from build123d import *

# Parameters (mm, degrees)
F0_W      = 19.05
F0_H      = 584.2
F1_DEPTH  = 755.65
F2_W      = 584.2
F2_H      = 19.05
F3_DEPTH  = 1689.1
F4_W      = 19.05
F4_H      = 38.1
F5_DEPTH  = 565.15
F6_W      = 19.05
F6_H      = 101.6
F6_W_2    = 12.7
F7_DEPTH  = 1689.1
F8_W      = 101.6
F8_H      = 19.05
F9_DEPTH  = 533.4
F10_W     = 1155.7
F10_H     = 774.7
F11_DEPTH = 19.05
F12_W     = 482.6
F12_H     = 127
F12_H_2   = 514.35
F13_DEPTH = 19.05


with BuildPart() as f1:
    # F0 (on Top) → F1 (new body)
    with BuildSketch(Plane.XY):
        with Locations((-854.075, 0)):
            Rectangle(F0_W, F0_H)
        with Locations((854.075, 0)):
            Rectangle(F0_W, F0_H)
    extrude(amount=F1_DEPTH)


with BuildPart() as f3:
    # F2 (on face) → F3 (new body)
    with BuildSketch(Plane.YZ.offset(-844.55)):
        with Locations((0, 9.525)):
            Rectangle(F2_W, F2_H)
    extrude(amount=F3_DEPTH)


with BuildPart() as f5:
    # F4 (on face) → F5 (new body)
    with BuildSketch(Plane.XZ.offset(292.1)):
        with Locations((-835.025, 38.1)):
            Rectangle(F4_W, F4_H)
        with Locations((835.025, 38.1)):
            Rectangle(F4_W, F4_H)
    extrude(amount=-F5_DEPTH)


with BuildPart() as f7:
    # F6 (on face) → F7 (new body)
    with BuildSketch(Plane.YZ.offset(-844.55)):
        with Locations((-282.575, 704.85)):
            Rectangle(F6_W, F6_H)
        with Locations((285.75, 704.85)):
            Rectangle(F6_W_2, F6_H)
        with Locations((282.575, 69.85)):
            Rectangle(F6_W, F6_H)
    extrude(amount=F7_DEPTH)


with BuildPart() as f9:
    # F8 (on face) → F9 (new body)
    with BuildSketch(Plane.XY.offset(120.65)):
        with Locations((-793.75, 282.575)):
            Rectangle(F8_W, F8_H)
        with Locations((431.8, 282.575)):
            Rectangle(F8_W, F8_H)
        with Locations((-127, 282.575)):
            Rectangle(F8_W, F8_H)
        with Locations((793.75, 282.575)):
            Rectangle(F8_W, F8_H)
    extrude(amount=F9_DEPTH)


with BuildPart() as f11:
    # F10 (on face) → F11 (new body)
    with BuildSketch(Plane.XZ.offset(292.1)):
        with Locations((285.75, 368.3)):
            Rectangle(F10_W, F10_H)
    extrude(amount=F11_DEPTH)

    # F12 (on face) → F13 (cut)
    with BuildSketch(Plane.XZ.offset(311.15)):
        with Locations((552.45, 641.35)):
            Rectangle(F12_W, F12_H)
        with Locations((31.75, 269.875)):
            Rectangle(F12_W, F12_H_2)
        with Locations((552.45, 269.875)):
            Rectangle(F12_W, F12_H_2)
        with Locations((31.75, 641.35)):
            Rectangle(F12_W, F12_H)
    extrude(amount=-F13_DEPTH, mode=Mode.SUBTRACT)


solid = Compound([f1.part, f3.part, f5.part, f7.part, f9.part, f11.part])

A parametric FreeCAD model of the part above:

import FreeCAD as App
import Part
import Sketcher
from FreeCAD import Vector
Q = App.Units.Quantity

doc = App.newDocument("Part")
body = doc.addObject("PartDesign::Body", "Body")
body.AllowCompound = True

sketch1 = body.newObject("Sketcher::SketchObject", "Sketch")
sketch1.AttachmentSupport = (doc.getObject("XY_Plane"), [""])
sketch1.MapMode = "FlatFace"
sketch1.addGeometry(Part.LineSegment(Vector(-863.6, 292.1, 0), Vector(-863.6, -292.1, 0)), False)
sketch1.addGeometry(Part.LineSegment(Vector(-863.6, -292.1, 0), Vector(-844.55, -292.1, 0)), False)
sketch1.addGeometry(Part.LineSegment(Vector(-844.55, -292.1, 0), Vector(-844.55, 292.1, 0)), False)
sketch1.addGeometry(Part.LineSegment(Vector(-844.55, 292.1, 0), Vector(-863.6, 292.1, 0)), False)
sketch1.addGeometry(Part.LineSegment(Vector(844.55, 292.1, 0), Vector(844.55, -292.1, 0)), False)
sketch1.addGeometry(Part.LineSegment(Vector(844.55, -292.1, 0), Vector(863.6, -292.1, 0)), False)
sketch1.addGeometry(Part.LineSegment(Vector(863.6, -292.1, 0), Vector(863.6, 292.1, 0)), False)
sketch1.addGeometry(Part.LineSegment(Vector(863.6, 292.1, 0), Vector(844.55, 292.1, 0)), False)
sketch1.addConstraint(Sketcher.Constraint("Coincident", 0, 2, 1, 1))
sketch1.addConstraint(Sketcher.Constraint("Coincident", 1, 2, 2, 1))
sketch1.addConstraint(Sketcher.Constraint("Coincident", 2, 2, 3, 1))
sketch1.addConstraint(Sketcher.Constraint("Coincident", 3, 2, 0, 1))
sketch1.addConstraint(Sketcher.Constraint("Coincident", 4, 2, 5, 1))
sketch1.addConstraint(Sketcher.Constraint("Coincident", 5, 2, 6, 1))
sketch1.addConstraint(Sketcher.Constraint("Coincident", 6, 2, 7, 1))
sketch1.addConstraint(Sketcher.Constraint("Coincident", 7, 2, 4, 1))
sketch1.addConstraint(Sketcher.Constraint("Vertical", 0))
sketch1.addConstraint(Sketcher.Constraint("Horizontal", 1))
sketch1.addConstraint(Sketcher.Constraint("Vertical", 2))
sketch1.addConstraint(Sketcher.Constraint("Horizontal", 3))
sketch1.addConstraint(Sketcher.Constraint("Vertical", 4))
sketch1.addConstraint(Sketcher.Constraint("Horizontal", 5))
sketch1.addConstraint(Sketcher.Constraint("Vertical", 6))
sketch1.addConstraint(Sketcher.Constraint("Horizontal", 7))
sketch1.addConstraint(Sketcher.Constraint("Symmetric", 2, 2, 4, 2, -1, 1))
sketch1.addConstraint(Sketcher.Constraint("Symmetric", 0, 2, 6, 2, -1, 1))
sketch1.addConstraint(Sketcher.Constraint("Horizontal", 1, 2, 4, 2))
sketch1.addConstraint(Sketcher.Constraint("DistanceY", 0, 2, 0, 1, Q("23 in")))
sketch1.addConstraint(Sketcher.Constraint("DistanceX", 0, 2, -1, 1, Q("34 in")))
sketch1.addConstraint(Sketcher.Constraint("DistanceX", 1, 1, 1, 2, Q("0.75 in")))
pad1 = body.newObject("PartDesign::Pad", "Pad")
pad1.Profile = sketch1
pad1.Length = Q("29.75 in")
body2 = doc.addObject("PartDesign::Body", "Body001")

sketch2 = body2.newObject("Sketcher::SketchObject", "Sketch001")
sketch2.AttachmentSupport = (doc.getObject("YZ_Plane001"), [""])
sketch2.MapMode = "FlatFace"
sketch2.AttachmentOffset = App.Placement(Vector(0, 0, -33.25 * 25.4), App.Rotation())
sketch2.addGeometry(Part.LineSegment(Vector(-292.1, 19.05, 0), Vector(-292.1, 0, 0)), False)
sketch2.addGeometry(Part.LineSegment(Vector(-292.1, 0, 0), Vector(292.1, 0, 0)), False)
sketch2.addGeometry(Part.LineSegment(Vector(292.1, 0, 0), Vector(292.1, 19.05, 0)), False)
sketch2.addGeometry(Part.LineSegment(Vector(292.1, 19.05, 0), Vector(-292.1, 19.05, 0)), False)
sketch2.addConstraint(Sketcher.Constraint("Coincident", 0, 2, 1, 1))
sketch2.addConstraint(Sketcher.Constraint("Coincident", 1, 2, 2, 1))
sketch2.addConstraint(Sketcher.Constraint("Coincident", 2, 2, 3, 1))
sketch2.addConstraint(Sketcher.Constraint("Coincident", 3, 2, 0, 1))
sketch2.addConstraint(Sketcher.Constraint("Vertical", 0))
sketch2.addConstraint(Sketcher.Constraint("Horizontal", 1))
sketch2.addConstraint(Sketcher.Constraint("Vertical", 2))
sketch2.addConstraint(Sketcher.Constraint("Horizontal", 3))
sketch2.addConstraint(Sketcher.Constraint("Symmetric", 0, 2, 1, 2, -1, 1))
sketch2.addConstraint(Sketcher.Constraint("DistanceX", 1, 1, 1, 2, Q("23 in")))
sketch2.addConstraint(Sketcher.Constraint("DistanceY", 0, 2, 0, 1, Q("0.75 in")))
pad2 = body2.newObject("PartDesign::Pad", "Pad001")
pad2.Profile = sketch2
pad2.Length = Q("66.5 in")
body3 = doc.addObject("PartDesign::Body", "Body002")
body3.AllowCompound = True

sketch3 = body3.newObject("Sketcher::SketchObject", "Sketch002")
sketch3.AttachmentSupport = (doc.getObject("XZ_Plane002"), [""])
sketch3.MapMode = "FlatFace"
sketch3.AttachmentOffset = App.Placement(Vector(0, 0, 11.5 * 25.4), App.Rotation())
sketch3.addGeometry(Part.LineSegment(Vector(-844.55, 57.15, 0), Vector(-844.55, 19.05, 0)), False)
sketch3.addGeometry(Part.LineSegment(Vector(-844.55, 19.05, 0), Vector(-825.5, 19.05, 0)), False)
sketch3.addGeometry(Part.LineSegment(Vector(-825.5, 19.05, 0), Vector(-825.5, 57.15, 0)), False)
sketch3.addGeometry(Part.LineSegment(Vector(-825.5, 57.15, 0), Vector(-844.55, 57.15, 0)), False)
sketch3.addGeometry(Part.LineSegment(Vector(825.5, 57.15, 0), Vector(825.5, 19.05, 0)), False)
sketch3.addGeometry(Part.LineSegment(Vector(825.5, 19.05, 0), Vector(844.55, 19.05, 0)), False)
sketch3.addGeometry(Part.LineSegment(Vector(844.55, 19.05, 0), Vector(844.55, 57.15, 0)), False)
sketch3.addGeometry(Part.LineSegment(Vector(844.55, 57.15, 0), Vector(825.5, 57.15, 0)), False)
sketch3.addConstraint(Sketcher.Constraint("Coincident", 0, 2, 1, 1))
sketch3.addConstraint(Sketcher.Constraint("Coincident", 1, 2, 2, 1))
sketch3.addConstraint(Sketcher.Constraint("Coincident", 2, 2, 3, 1))
sketch3.addConstraint(Sketcher.Constraint("Coincident", 3, 2, 0, 1))
sketch3.addConstraint(Sketcher.Constraint("Coincident", 4, 2, 5, 1))
sketch3.addConstraint(Sketcher.Constraint("Coincident", 5, 2, 6, 1))
sketch3.addConstraint(Sketcher.Constraint("Coincident", 6, 2, 7, 1))
sketch3.addConstraint(Sketcher.Constraint("Coincident", 7, 2, 4, 1))
sketch3.addConstraint(Sketcher.Constraint("Vertical", 0))
sketch3.addConstraint(Sketcher.Constraint("Horizontal", 1))
sketch3.addConstraint(Sketcher.Constraint("Vertical", 2))
sketch3.addConstraint(Sketcher.Constraint("Horizontal", 3))
sketch3.addConstraint(Sketcher.Constraint("Vertical", 4))
sketch3.addConstraint(Sketcher.Constraint("Horizontal", 5))
sketch3.addConstraint(Sketcher.Constraint("Vertical", 6))
sketch3.addConstraint(Sketcher.Constraint("Horizontal", 7))
sketch3.addConstraint(Sketcher.Constraint("Symmetric", 1, 2, 4, 2, -2))
sketch3.addConstraint(Sketcher.Constraint("Symmetric", 3, 2, 6, 2, -2))
sketch3.addConstraint(Sketcher.Constraint("DistanceY", 0, 2, 0, 1, Q("1.5 in")))
sketch3.addConstraint(Sketcher.Constraint("DistanceX", 1, 2, 4, 2, Q("65 in")))
sketch3.addConstraint(Sketcher.Constraint("DistanceX", 1, 1, 1, 2, Q("0.75 in")))
sketch3.addConstraint(Sketcher.Constraint("DistanceY", -1, 1, 0, 2, Q("0.75 in")))
pad3 = body3.newObject("PartDesign::Pad", "Pad002")
pad3.Profile = sketch3
pad3.Length = Q("22.25 in")
pad3.Reversed = True
body4 = doc.addObject("PartDesign::Body", "Body003")
body4.AllowCompound = True

sketch4 = body4.newObject("Sketcher::SketchObject", "Sketch003")
sketch4.AttachmentSupport = (doc.getObject("YZ_Plane003"), [""])
sketch4.MapMode = "FlatFace"
sketch4.AttachmentOffset = App.Placement(Vector(0, 0, -33.25 * 25.4), App.Rotation())
sketch4.addGeometry(Part.LineSegment(Vector(-292.1, 755.65, 0), Vector(-292.1, 654.05, 0)), False)
sketch4.addGeometry(Part.LineSegment(Vector(-292.1, 654.05, 0), Vector(-273.05, 654.05, 0)), False)
sketch4.addGeometry(Part.LineSegment(Vector(-273.05, 654.05, 0), Vector(-273.05, 755.65, 0)), False)
sketch4.addGeometry(Part.LineSegment(Vector(-273.05, 755.65, 0), Vector(-292.1, 755.65, 0)), False)
sketch4.addGeometry(Part.LineSegment(Vector(279.4, 755.65, 0), Vector(279.4, 654.05, 0)), False)
sketch4.addGeometry(Part.LineSegment(Vector(279.4, 654.05, 0), Vector(292.1, 654.05, 0)), False)
sketch4.addGeometry(Part.LineSegment(Vector(292.1, 654.05, 0), Vector(292.1, 755.65, 0)), False)
sketch4.addGeometry(Part.LineSegment(Vector(292.1, 755.65, 0), Vector(279.4, 755.65, 0)), False)
sketch4.addGeometry(Part.LineSegment(Vector(273.05, 120.65, 0), Vector(273.05, 19.05, 0)), False)
sketch4.addGeometry(Part.LineSegment(Vector(273.05, 19.05, 0), Vector(292.1, 19.05, 0)), False)
sketch4.addGeometry(Part.LineSegment(Vector(292.1, 19.05, 0), Vector(292.1, 120.65, 0)), False)
sketch4.addGeometry(Part.LineSegment(Vector(292.1, 120.65, 0), Vector(273.05, 120.65, 0)), False)
sketch4.addConstraint(Sketcher.Constraint("Coincident", 0, 2, 1, 1))
sketch4.addConstraint(Sketcher.Constraint("Coincident", 1, 2, 2, 1))
sketch4.addConstraint(Sketcher.Constraint("Coincident", 2, 2, 3, 1))
sketch4.addConstraint(Sketcher.Constraint("Coincident", 3, 2, 0, 1))
sketch4.addConstraint(Sketcher.Constraint("Coincident", 4, 2, 5, 1))
sketch4.addConstraint(Sketcher.Constraint("Coincident", 5, 2, 6, 1))
sketch4.addConstraint(Sketcher.Constraint("Coincident", 6, 2, 7, 1))
sketch4.addConstraint(Sketcher.Constraint("Coincident", 7, 2, 4, 1))
sketch4.addConstraint(Sketcher.Constraint("Coincident", 8, 2, 9, 1))
sketch4.addConstraint(Sketcher.Constraint("Coincident", 9, 2, 10, 1))
sketch4.addConstraint(Sketcher.Constraint("Coincident", 10, 2, 11, 1))
sketch4.addConstraint(Sketcher.Constraint("Coincident", 11, 2, 8, 1))
sketch4.addConstraint(Sketcher.Constraint("Vertical", 0))
sketch4.addConstraint(Sketcher.Constraint("Horizontal", 1))
sketch4.addConstraint(Sketcher.Constraint("Vertical", 2))
sketch4.addConstraint(Sketcher.Constraint("Horizontal", 3))
sketch4.addConstraint(Sketcher.Constraint("Vertical", 4))
sketch4.addConstraint(Sketcher.Constraint("Horizontal", 5))
sketch4.addConstraint(Sketcher.Constraint("Vertical", 6))
sketch4.addConstraint(Sketcher.Constraint("Horizontal", 7))
sketch4.addConstraint(Sketcher.Constraint("Vertical", 8))
sketch4.addConstraint(Sketcher.Constraint("Horizontal", 9))
sketch4.addConstraint(Sketcher.Constraint("Vertical", 10))
sketch4.addConstraint(Sketcher.Constraint("Horizontal", 11))
sketch4.addConstraint(Sketcher.Constraint("Symmetric", 0, 2, 5, 2, -2))
sketch4.addConstraint(Sketcher.Constraint("Horizontal", 3, 2, 6, 2))
sketch4.addConstraint(Sketcher.Constraint("Vertical", 6, 2, 9, 2))
sketch4.addConstraint(Sketcher.Constraint("Equal", 3, 9))
sketch4.addConstraint(Sketcher.Constraint("Equal", 6, 8))
sketch4.addConstraint(Sketcher.Constraint("DistanceY", 0, 2, 0, 1, Q("4 in")))
sketch4.addConstraint(Sketcher.Constraint("DistanceX", 5, 1, 5, 2, Q("0.5 in")))
sketch4.addConstraint(Sketcher.Constraint("DistanceX", -1, 1, 4, 2, Q("11 in")))
sketch4.addConstraint(Sketcher.Constraint("DistanceY", 8, 2, 4, 2, Q("25 in")))
sketch4.addConstraint(Sketcher.Constraint("DistanceX", 1, 1, 1, 2, Q("0.75 in")))
sketch4.addConstraint(Sketcher.Constraint("DistanceY", -1, 1, 0, 2, Q("25.75 in")))
pad4 = body4.newObject("PartDesign::Pad", "Pad003")
pad4.Profile = sketch4
pad4.Length = Q("66.5 in")
body5 = doc.addObject("PartDesign::Body", "Body004")
body5.AllowCompound = True

sketch5 = body5.newObject("Sketcher::SketchObject", "Sketch004")
sketch5.AttachmentSupport = (doc.getObject("XY_Plane004"), [""])
sketch5.MapMode = "FlatFace"
sketch5.AttachmentOffset = App.Placement(Vector(0, 0, 4.75 * 25.4), App.Rotation())
sketch5.addGeometry(Part.LineSegment(Vector(-844.55, 292.1, 0), Vector(-844.55, 273.05, 0)), False)
sketch5.addGeometry(Part.LineSegment(Vector(-844.55, 273.05, 0), Vector(-742.95, 273.05, 0)), False)
sketch5.addGeometry(Part.LineSegment(Vector(-742.95, 273.05, 0), Vector(-742.95, 292.1, 0)), False)
sketch5.addGeometry(Part.LineSegment(Vector(-742.95, 292.1, 0), Vector(-844.55, 292.1, 0)), False)
sketch5.addGeometry(Part.LineSegment(Vector(381, 292.1, 0), Vector(381, 273.05, 0)), False)
sketch5.addGeometry(Part.LineSegment(Vector(381, 273.05, 0), Vector(482.6, 273.05, 0)), False)
sketch5.addGeometry(Part.LineSegment(Vector(482.6, 273.05, 0), Vector(482.6, 292.1, 0)), False)
sketch5.addGeometry(Part.LineSegment(Vector(482.6, 292.1, 0), Vector(381, 292.1, 0)), False)
sketch5.addGeometry(Part.LineSegment(Vector(-177.8, 292.1, 0), Vector(-177.8, 273.05, 0)), False)
sketch5.addGeometry(Part.LineSegment(Vector(-177.8, 273.05, 0), Vector(-76.2, 273.05, 0)), False)
sketch5.addGeometry(Part.LineSegment(Vector(-76.2, 273.05, 0), Vector(-76.2, 292.1, 0)), False)
sketch5.addGeometry(Part.LineSegment(Vector(-76.2, 292.1, 0), Vector(-177.8, 292.1, 0)), False)
sketch5.addGeometry(Part.LineSegment(Vector(742.95, 292.1, 0), Vector(742.95, 273.05, 0)), False)
sketch5.addGeometry(Part.LineSegment(Vector(742.95, 273.05, 0), Vector(844.55, 273.05, 0)), False)
sketch5.addGeometry(Part.LineSegment(Vector(844.55, 273.05, 0), Vector(844.55, 292.1, 0)), False)
sketch5.addGeometry(Part.LineSegment(Vector(844.55, 292.1, 0), Vector(742.95, 292.1, 0)), False)
sketch5.addConstraint(Sketcher.Constraint("Coincident", 0, 2, 1, 1))
sketch5.addConstraint(Sketcher.Constraint("Coincident", 1, 2, 2, 1))
sketch5.addConstraint(Sketcher.Constraint("Coincident", 2, 2, 3, 1))
sketch5.addConstraint(Sketcher.Constraint("Coincident", 3, 2, 0, 1))
sketch5.addConstraint(Sketcher.Constraint("Coincident", 4, 2, 5, 1))
sketch5.addConstraint(Sketcher.Constraint("Coincident", 5, 2, 6, 1))
sketch5.addConstraint(Sketcher.Constraint("Coincident", 6, 2, 7, 1))
sketch5.addConstraint(Sketcher.Constraint("Coincident", 7, 2, 4, 1))
sketch5.addConstraint(Sketcher.Constraint("Coincident", 8, 2, 9, 1))
sketch5.addConstraint(Sketcher.Constraint("Coincident", 9, 2, 10, 1))
sketch5.addConstraint(Sketcher.Constraint("Coincident", 10, 2, 11, 1))
sketch5.addConstraint(Sketcher.Constraint("Coincident", 11, 2, 8, 1))
sketch5.addConstraint(Sketcher.Constraint("Coincident", 12, 2, 13, 1))
sketch5.addConstraint(Sketcher.Constraint("Coincident", 13, 2, 14, 1))
sketch5.addConstraint(Sketcher.Constraint("Coincident", 14, 2, 15, 1))
sketch5.addConstraint(Sketcher.Constraint("Coincident", 15, 2, 12, 1))
sketch5.addConstraint(Sketcher.Constraint("Vertical", 0))
sketch5.addConstraint(Sketcher.Constraint("Horizontal", 1))
sketch5.addConstraint(Sketcher.Constraint("Vertical", 2))
sketch5.addConstraint(Sketcher.Constraint("Horizontal", 3))
sketch5.addConstraint(Sketcher.Constraint("Vertical", 4))
sketch5.addConstraint(Sketcher.Constraint("Horizontal", 5))
sketch5.addConstraint(Sketcher.Constraint("Vertical", 6))
sketch5.addConstraint(Sketcher.Constraint("Horizontal", 7))
sketch5.addConstraint(Sketcher.Constraint("Vertical", 8))
sketch5.addConstraint(Sketcher.Constraint("Horizontal", 9))
sketch5.addConstraint(Sketcher.Constraint("Vertical", 10))
sketch5.addConstraint(Sketcher.Constraint("Horizontal", 11))
sketch5.addConstraint(Sketcher.Constraint("Vertical", 12))
sketch5.addConstraint(Sketcher.Constraint("Horizontal", 13))
sketch5.addConstraint(Sketcher.Constraint("Vertical", 14))
sketch5.addConstraint(Sketcher.Constraint("Horizontal", 15))
sketch5.addConstraint(Sketcher.Constraint("Symmetric", 1, 2, 12, 2, -2))
sketch5.addConstraint(Sketcher.Constraint("Symmetric", 3, 2, 14, 2, -2))
sketch5.addConstraint(Sketcher.Constraint("Horizontal", 1, 2, 4, 2))
sketch5.addConstraint(Sketcher.Constraint("Horizontal", 3, 2, 6, 2))
sketch5.addConstraint(Sketcher.Constraint("Horizontal", 5, 2, 8, 2))
sketch5.addConstraint(Sketcher.Constraint("Horizontal", 7, 2, 10, 2))
sketch5.addConstraint(Sketcher.Constraint("Equal", 3, 5))
sketch5.addConstraint(Sketcher.Constraint("Equal", 7, 9))
sketch5.addConstraint(Sketcher.Constraint("DistanceX", 1, 1, 1, 2, Q("4 in")))
sketch5.addConstraint(Sketcher.Constraint("DistanceX", -1, 1, 4, 2, Q("15 in")))
sketch5.addConstraint(Sketcher.Constraint("DistanceX", 8, 2, -1, 1, Q("7 in")))
sketch5.addConstraint(Sketcher.Constraint("DistanceY", 0, 2, 0, 1, Q("0.75 in")))
sketch5.addConstraint(Sketcher.Constraint("DistanceY", -1, 1, 2, 2, Q("11.5 in")))
sketch5.addConstraint(Sketcher.Constraint("DistanceX", 0, 2, -1, 1, Q("33.25 in")))
pad5 = body5.newObject("PartDesign::Pad", "Pad004")
pad5.Profile = sketch5
pad5.Length = Q("21 in")
body6 = doc.addObject("PartDesign::Body", "Body005")

sketch6 = body6.newObject("Sketcher::SketchObject", "Sketch005")
sketch6.AttachmentSupport = (doc.getObject("XZ_Plane005"), [""])
sketch6.MapMode = "FlatFace"
sketch6.AttachmentOffset = App.Placement(Vector(0, 0, 11.5 * 25.4), App.Rotation())
sketch6.addGeometry(Part.LineSegment(Vector(-292.1, 755.65, 0), Vector(-292.1, -19.05, 0)), False)
sketch6.addGeometry(Part.LineSegment(Vector(-292.1, -19.05, 0), Vector(863.6, -19.05, 0)), False)
sketch6.addGeometry(Part.LineSegment(Vector(863.6, -19.05, 0), Vector(863.6, 755.65, 0)), False)
sketch6.addGeometry(Part.LineSegment(Vector(863.6, 755.65, 0), Vector(-292.1, 755.65, 0)), False)
sketch6.addConstraint(Sketcher.Constraint("Coincident", 0, 2, 1, 1))
sketch6.addConstraint(Sketcher.Constraint("Coincident", 1, 2, 2, 1))
sketch6.addConstraint(Sketcher.Constraint("Coincident", 2, 2, 3, 1))
sketch6.addConstraint(Sketcher.Constraint("Coincident", 3, 2, 0, 1))
sketch6.addConstraint(Sketcher.Constraint("Vertical", 0))
sketch6.addConstraint(Sketcher.Constraint("Horizontal", 1))
sketch6.addConstraint(Sketcher.Constraint("Vertical", 2))
sketch6.addConstraint(Sketcher.Constraint("Horizontal", 3))
sketch6.addConstraint(Sketcher.Constraint("DistanceX", 1, 1, 1, 2, Q("45.5 in")))
sketch6.addConstraint(Sketcher.Constraint("DistanceY", 0, 2, 0, 1, Q("30.5 in")))
sketch6.addConstraint(Sketcher.Constraint("DistanceX", -1, 1, 1, 2, Q("34 in")))
sketch6.addConstraint(Sketcher.Constraint("DistanceY", 0, 2, -1, 1, Q("0.75 in")))
pad6 = body6.newObject("PartDesign::Pad", "Pad005")
pad6.Profile = sketch6
pad6.Length = Q("0.75 in")

sketch7 = body6.newObject("Sketcher::SketchObject", "Sketch006")
sketch7.AttachmentSupport = (doc.getObject("XZ_Plane005"), [""])
sketch7.MapMode = "FlatFace"
sketch7.AttachmentOffset = App.Placement(Vector(0, 0, 12.25 * 25.4), App.Rotation())
sketch7.addGeometry(Part.LineSegment(Vector(311.15, 704.85, 0), Vector(311.15, 577.85, 0)), False)
sketch7.addGeometry(Part.LineSegment(Vector(311.15, 577.85, 0), Vector(793.75, 577.85, 0)), False)
sketch7.addGeometry(Part.LineSegment(Vector(793.75, 577.85, 0), Vector(793.75, 704.85, 0)), False)
sketch7.addGeometry(Part.LineSegment(Vector(793.75, 704.85, 0), Vector(311.15, 704.85, 0)), False)
sketch7.addGeometry(Part.LineSegment(Vector(-209.55, 527.05, 0), Vector(-209.55, 12.7, 0)), False)
sketch7.addGeometry(Part.LineSegment(Vector(-209.55, 12.7, 0), Vector(273.05, 12.7, 0)), False)
sketch7.addGeometry(Part.LineSegment(Vector(273.05, 12.7, 0), Vector(273.05, 527.05, 0)), False)
sketch7.addGeometry(Part.LineSegment(Vector(273.05, 527.05, 0), Vector(-209.55, 527.05, 0)), False)
sketch7.addGeometry(Part.LineSegment(Vector(311.15, 527.05, 0), Vector(311.15, 12.7, 0)), False)
sketch7.addGeometry(Part.LineSegment(Vector(311.15, 12.7, 0), Vector(793.75, 12.7, 0)), False)
sketch7.addGeometry(Part.LineSegment(Vector(793.75, 12.7, 0), Vector(793.75, 527.05, 0)), False)
sketch7.addGeometry(Part.LineSegment(Vector(793.75, 527.05, 0), Vector(311.15, 527.05, 0)), False)
sketch7.addGeometry(Part.LineSegment(Vector(-209.55, 704.85, 0), Vector(-209.55, 577.85, 0)), False)
sketch7.addGeometry(Part.LineSegment(Vector(-209.55, 577.85, 0), Vector(273.05, 577.85, 0)), False)
sketch7.addGeometry(Part.LineSegment(Vector(273.05, 577.85, 0), Vector(273.05, 704.85, 0)), False)
sketch7.addGeometry(Part.LineSegment(Vector(273.05, 704.85, 0), Vector(-209.55, 704.85, 0)), False)
sketch7.addConstraint(Sketcher.Constraint("Coincident", 0, 2, 1, 1))
sketch7.addConstraint(Sketcher.Constraint("Coincident", 1, 2, 2, 1))
sketch7.addConstraint(Sketcher.Constraint("Coincident", 2, 2, 3, 1))
sketch7.addConstraint(Sketcher.Constraint("Coincident", 3, 2, 0, 1))
sketch7.addConstraint(Sketcher.Constraint("Coincident", 4, 2, 5, 1))
sketch7.addConstraint(Sketcher.Constraint("Coincident", 5, 2, 6, 1))
sketch7.addConstraint(Sketcher.Constraint("Coincident", 6, 2, 7, 1))
sketch7.addConstraint(Sketcher.Constraint("Coincident", 7, 2, 4, 1))
sketch7.addConstraint(Sketcher.Constraint("Coincident", 8, 2, 9, 1))
sketch7.addConstraint(Sketcher.Constraint("Coincident", 9, 2, 10, 1))
sketch7.addConstraint(Sketcher.Constraint("Coincident", 10, 2, 11, 1))
sketch7.addConstraint(Sketcher.Constraint("Coincident", 11, 2, 8, 1))
sketch7.addConstraint(Sketcher.Constraint("Coincident", 12, 2, 13, 1))
sketch7.addConstraint(Sketcher.Constraint("Coincident", 13, 2, 14, 1))
sketch7.addConstraint(Sketcher.Constraint("Coincident", 14, 2, 15, 1))
sketch7.addConstraint(Sketcher.Constraint("Coincident", 15, 2, 12, 1))
sketch7.addConstraint(Sketcher.Constraint("Vertical", 0))
sketch7.addConstraint(Sketcher.Constraint("Horizontal", 1))
sketch7.addConstraint(Sketcher.Constraint("Vertical", 2))
sketch7.addConstraint(Sketcher.Constraint("Horizontal", 3))
sketch7.addConstraint(Sketcher.Constraint("Vertical", 4))
sketch7.addConstraint(Sketcher.Constraint("Horizontal", 5))
sketch7.addConstraint(Sketcher.Constraint("Vertical", 6))
sketch7.addConstraint(Sketcher.Constraint("Horizontal", 7))
sketch7.addConstraint(Sketcher.Constraint("Vertical", 8))
sketch7.addConstraint(Sketcher.Constraint("Horizontal", 9))
sketch7.addConstraint(Sketcher.Constraint("Vertical", 10))
sketch7.addConstraint(Sketcher.Constraint("Horizontal", 11))
sketch7.addConstraint(Sketcher.Constraint("Vertical", 12))
sketch7.addConstraint(Sketcher.Constraint("Horizontal", 13))
sketch7.addConstraint(Sketcher.Constraint("Vertical", 14))
sketch7.addConstraint(Sketcher.Constraint("Horizontal", 15))
sketch7.addConstraint(Sketcher.Constraint("Horizontal", 5, 2, 8, 2))
sketch7.addConstraint(Sketcher.Constraint("Horizontal", 7, 2, 10, 2))
sketch7.addConstraint(Sketcher.Constraint("Horizontal", 1, 2, 12, 2))
sketch7.addConstraint(Sketcher.Constraint("Horizontal", 3, 2, 14, 2))
sketch7.addConstraint(Sketcher.Constraint("Vertical", 3, 2, 8, 2))
sketch7.addConstraint(Sketcher.Constraint("Vertical", 2, 2, 9, 2))
sketch7.addConstraint(Sketcher.Constraint("Vertical", 7, 2, 12, 2))
sketch7.addConstraint(Sketcher.Constraint("Vertical", 6, 2, 13, 2))
sketch7.addConstraint(Sketcher.Constraint("Equal", 3, 5))
sketch7.addConstraint(Sketcher.Constraint("DistanceX", 1, 1, 1, 2, Q("19 in")))
sketch7.addConstraint(Sketcher.Constraint("DistanceY", 0, 2, 0, 1, Q("5 in")))
sketch7.addConstraint(Sketcher.Constraint("DistanceY", 6, 2, 0, 2, Q("2 in")))
sketch7.addConstraint(Sketcher.Constraint("DistanceY", 4, 2, 4, 1, Q("20.25 in")))
sketch7.addConstraint(Sketcher.Constraint("DistanceY", -1, 1, 4, 2, Q("0.5 in")))
sketch7.addConstraint(Sketcher.Constraint("DistanceX", 4, 2, 0, 2, Q("20.5 in")))
sketch7.addConstraint(Sketcher.Constraint("DistanceX", -1, 1, 0, 2, Q("12.25 in")))
pocket1 = body6.newObject("PartDesign::Pocket", "Pocket")
pocket1.Profile = sketch7
pocket1.Length = Q("0.75 in")

doc.recompute()
